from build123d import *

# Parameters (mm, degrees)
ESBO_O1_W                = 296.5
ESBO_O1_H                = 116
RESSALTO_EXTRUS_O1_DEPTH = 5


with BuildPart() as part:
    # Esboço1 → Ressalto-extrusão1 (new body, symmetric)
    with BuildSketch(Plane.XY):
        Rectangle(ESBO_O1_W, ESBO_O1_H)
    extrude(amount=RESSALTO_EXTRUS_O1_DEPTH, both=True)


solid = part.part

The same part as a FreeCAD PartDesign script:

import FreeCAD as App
import Part
import Sketcher


def add_polygon(sketch, points):
    """Adds a closed chain of lines whose ends are joined by coincident constraints."""
    first, n = sketch.GeometryCount, len(points)
    for a, b in zip(points, points[1:] + points[:1]):
        sketch.addGeometry(Part.LineSegment(App.Vector(*a, 0), App.Vector(*b, 0)), False)
    for i in range(n):
        sketch.addConstraint(Sketcher.Constraint("Coincident", first + i, 2, first + (i + 1) % n, 1))

doc = App.newDocument("Part")
body = doc.addObject("PartDesign::Body", "Body")

# Sketch on XY plane
sketch1 = body.newObject("Sketcher::SketchObject", "Sketch")
sketch1.AttachmentSupport = (doc.getObject("XY_Plane"), [""])
sketch1.MapMode = "FlatFace"
add_polygon(sketch1, [(-148, 58), (-148, -58), (148, -58), (148, 58)])  # lines 0-3
sketch1.addConstraint([
    Sketcher.Constraint("Vertical", 0),
    Sketcher.Constraint("Horizontal", 1),
    Sketcher.Constraint("Vertical", 2),
    Sketcher.Constraint("Horizontal", 3),
    Sketcher.Constraint("Symmetric", 0, 2, 2, 2, -1, 1),
    Sketcher.Constraint("DistanceY", 0, 2, 0, 1, 116.0),
    Sketcher.Constraint("DistanceX", 1, 1, 1, 2, 296.5),
])
pad1 = body.newObject("PartDesign::Pad", "Pad")
pad1.Profile = sketch1
pad1.Length = 10
pad1.Midplane = True

doc.recompute()
